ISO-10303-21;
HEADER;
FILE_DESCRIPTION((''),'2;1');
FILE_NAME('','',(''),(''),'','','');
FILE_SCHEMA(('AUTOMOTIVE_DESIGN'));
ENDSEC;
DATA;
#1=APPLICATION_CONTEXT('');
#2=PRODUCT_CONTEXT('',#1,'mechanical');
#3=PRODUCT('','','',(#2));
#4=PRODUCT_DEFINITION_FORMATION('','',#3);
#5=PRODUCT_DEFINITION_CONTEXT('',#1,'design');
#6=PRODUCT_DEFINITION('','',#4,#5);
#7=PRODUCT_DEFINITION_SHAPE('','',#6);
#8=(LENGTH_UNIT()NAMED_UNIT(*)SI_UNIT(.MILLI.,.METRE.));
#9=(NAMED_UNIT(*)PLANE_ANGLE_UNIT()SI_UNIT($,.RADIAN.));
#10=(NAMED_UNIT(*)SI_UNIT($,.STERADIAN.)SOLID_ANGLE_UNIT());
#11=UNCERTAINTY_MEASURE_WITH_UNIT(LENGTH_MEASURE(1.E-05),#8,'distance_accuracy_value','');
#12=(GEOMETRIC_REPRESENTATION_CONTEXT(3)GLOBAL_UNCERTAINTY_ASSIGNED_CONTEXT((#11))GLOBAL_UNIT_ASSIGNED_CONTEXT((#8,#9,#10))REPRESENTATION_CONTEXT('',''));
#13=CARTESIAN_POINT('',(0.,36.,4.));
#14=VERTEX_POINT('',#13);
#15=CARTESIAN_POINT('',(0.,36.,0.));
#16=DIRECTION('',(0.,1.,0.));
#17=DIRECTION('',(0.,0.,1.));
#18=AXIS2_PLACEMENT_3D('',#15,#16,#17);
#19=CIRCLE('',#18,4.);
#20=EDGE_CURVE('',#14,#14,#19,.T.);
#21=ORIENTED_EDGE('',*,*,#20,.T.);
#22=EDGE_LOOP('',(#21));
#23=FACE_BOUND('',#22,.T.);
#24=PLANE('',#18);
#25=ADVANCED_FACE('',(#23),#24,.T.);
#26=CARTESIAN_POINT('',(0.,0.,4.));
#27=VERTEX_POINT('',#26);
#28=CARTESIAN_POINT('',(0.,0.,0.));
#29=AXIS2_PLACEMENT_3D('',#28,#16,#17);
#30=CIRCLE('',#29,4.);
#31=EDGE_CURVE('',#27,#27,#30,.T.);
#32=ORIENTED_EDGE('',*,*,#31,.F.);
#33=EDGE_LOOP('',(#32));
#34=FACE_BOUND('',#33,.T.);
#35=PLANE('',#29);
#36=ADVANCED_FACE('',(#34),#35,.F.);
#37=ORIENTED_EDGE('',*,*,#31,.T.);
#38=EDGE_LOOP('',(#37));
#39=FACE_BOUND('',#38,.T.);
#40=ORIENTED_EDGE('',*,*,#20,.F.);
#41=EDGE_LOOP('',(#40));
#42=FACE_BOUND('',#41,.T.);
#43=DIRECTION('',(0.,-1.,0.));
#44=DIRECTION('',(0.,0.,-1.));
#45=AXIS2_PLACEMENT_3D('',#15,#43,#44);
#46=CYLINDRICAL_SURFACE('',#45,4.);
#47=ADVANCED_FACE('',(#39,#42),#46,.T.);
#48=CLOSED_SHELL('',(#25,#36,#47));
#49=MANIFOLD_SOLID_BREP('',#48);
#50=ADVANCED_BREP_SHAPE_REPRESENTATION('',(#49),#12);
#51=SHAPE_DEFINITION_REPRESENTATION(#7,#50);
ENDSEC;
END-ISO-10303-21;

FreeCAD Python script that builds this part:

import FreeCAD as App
import Part
import Sketcher
from FreeCAD import Vector

doc = App.newDocument("Part")
params = doc.addObject("Spreadsheet::Sheet", "Params")
for row, (alias, value) in enumerate([
    ("sketch1_diameter", "8 mm"),
    ("pad1_length", "36 mm"),
], start=1):
    params.set(f"A{row}", alias)
    params.set(f"B{row}", "=" + value)
    params.setAlias(f"B{row}", alias)

body = doc.addObject("PartDesign::Body", "Body")

# Sketch on XZ plane
sketch1 = body.newObject("Sketcher::SketchObject", "Sketch")
sketch1.AttachmentSupport = (doc.getObject("XZ_Plane"), [""])
sketch1.MapMode = "FlatFace"
sketch1.addGeometry(Part.Circle(Vector(0, 0, 0), Vector(0, 0, 1), 4), False)
sketch1.addConstraint([
    Sketcher.Constraint("Coincident", 0, 3, -1, 1),
    Sketcher.Constraint("Diameter", 0, 8.0),
])
sketch1.setExpression("Constraints[1]", "Params.sketch1_diameter")
pad1 = body.newObject("PartDesign::Pad", "Pad")
pad1.Profile = sketch1
pad1.setExpression("Length", "Params.pad1_length")
pad1.Reversed = True

doc.recompute()
